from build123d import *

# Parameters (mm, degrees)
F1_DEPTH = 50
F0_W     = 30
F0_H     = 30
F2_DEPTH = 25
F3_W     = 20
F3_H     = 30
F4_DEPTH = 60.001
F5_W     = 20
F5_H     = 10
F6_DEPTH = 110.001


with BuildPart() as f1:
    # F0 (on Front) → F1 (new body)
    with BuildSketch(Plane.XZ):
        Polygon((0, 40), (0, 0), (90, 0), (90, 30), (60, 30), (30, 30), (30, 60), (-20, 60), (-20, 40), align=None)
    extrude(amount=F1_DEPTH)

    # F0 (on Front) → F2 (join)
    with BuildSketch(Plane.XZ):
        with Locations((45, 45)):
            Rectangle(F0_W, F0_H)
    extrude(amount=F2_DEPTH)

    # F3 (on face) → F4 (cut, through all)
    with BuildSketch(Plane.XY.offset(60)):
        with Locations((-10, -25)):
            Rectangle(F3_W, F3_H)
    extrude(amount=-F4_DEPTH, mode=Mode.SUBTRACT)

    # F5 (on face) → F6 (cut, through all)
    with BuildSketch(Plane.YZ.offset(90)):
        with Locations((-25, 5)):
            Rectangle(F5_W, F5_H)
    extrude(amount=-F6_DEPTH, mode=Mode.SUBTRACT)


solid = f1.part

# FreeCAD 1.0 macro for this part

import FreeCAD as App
import Part
import Sketcher
from FreeCAD import Vector


def add_polygon(sketch, points):
    """Adds a closed chain of lines whose ends are joined by coincident constraints."""
    first, n = sketch.GeometryCount, len(points)
    for a, b in zip(points, points[1:] + points[:1]):
        sketch.addGeometry(Part.LineSegment(App.Vector(*a, 0), App.Vector(*b, 0)), False)
    for i in range(n):
        sketch.addConstraint(Sketcher.Constraint("Coincident", first + i, 2, first + (i + 1) % n, 1))

doc = App.newDocument("Part")
body = doc.addObject("PartDesign::Body", "Body")

sketch1 = body.newObject("Sketcher::SketchObject", "Sketch")
sketch1.AttachmentSupport = (doc.getObject("XZ_Plane"), [""])
sketch1.MapMode = "FlatFace"
add_polygon(sketch1, [(0, 40), (0, 0), (90, 0), (90, 30), (30, 30), (30, 60), (-20, 60), (-20, 40)])
sketch1.addConstraint([
    Sketcher.Constraint("Vertical", 0),
    Sketcher.Constraint("Horizontal", 1),
    Sketcher.Constraint("Vertical", 2),
    Sketcher.Constraint("Horizontal", 3),
    Sketcher.Constraint("Vertical", 4),
    Sketcher.Constraint("Horizontal", 5),
    Sketcher.Constraint("Vertical", 6),
    Sketcher.Constraint("Horizontal", 7),
    Sketcher.Constraint("Coincident", 0, 2, -1, 1),
    Sketcher.Constraint("Equal", 2, 4),
    Sketcher.Constraint("Equal", 7, 6),
    Sketcher.Constraint("DistanceX", 1, 1, 1, 2, 90.0),
    Sketcher.Constraint("DistanceX", 3, 2, 3, 1, 60.0),
    Sketcher.Constraint("DistanceX", 5, 2, 5, 1, 50.0),
    Sketcher.Constraint("DistanceY", 0, 2, 0, 1, 40.0),
])
pad1 = body.newObject("PartDesign::Pad", "Pad")
pad1.Profile = sketch1
pad1.Length = 50

sketch2 = body.newObject("Sketcher::SketchObject", "Sketch001")
sketch2.AttachmentSupport = (doc.getObject("XZ_Plane"), [""])
sketch2.MapMode = "FlatFace"
add_polygon(sketch2, [(30, 60), (30, 30), (60, 30), (60, 60)])
sketch2.addConstraint([
    Sketcher.Constraint("Vertical", 0),
    Sketcher.Constraint("Horizontal", 1),
    Sketcher.Constraint("Vertical", 2),
    Sketcher.Constraint("Horizontal", 3),
    Sketcher.Constraint("Equal", 3, 0),
    Sketcher.Constraint("DistanceX", 1, 1, 1, 2, 30.0),
    Sketcher.Constraint("DistanceX", -1, 1, 0, 2, 30.0),
    Sketcher.Constraint("DistanceY", -1, 1, 0, 2, 30.0),
])
pad2 = body.newObject("PartDesign::Pad", "Pad001")
pad2.Profile = sketch2
pad2.Length = 25

sketch3 = body.newObject("Sketcher::SketchObject", "Sketch002")
sketch3.AttachmentSupport = (doc.getObject("XY_Plane"), [""])
sketch3.MapMode = "FlatFace"
sketch3.AttachmentOffset = App.Placement(Vector(0, 0, 60), App.Rotation())
add_polygon(sketch3, [(-20, -10), (-20, -40), (0, -40), (0, -10)])
sketch3.addConstraint([
    Sketcher.Constraint("Vertical", 0),
    Sketcher.Constraint("Horizontal", 1),
    Sketcher.Constraint("Vertical", 2),
    Sketcher.Constraint("Horizontal", 3),
    Sketcher.Constraint("PointOnObject", 1, 2, -2),
    Sketcher.Constraint("DistanceX", 1, 1, 1, 2, 20.0),
    Sketcher.Constraint("DistanceY", 0, 2, 0, 1, 30.0),
    Sketcher.Constraint("DistanceY", 0, 2, -1, 1, 40.0),
])
pocket1 = body.newObject("PartDesign::Pocket", "Pocket")
pocket1.Profile = sketch3
pocket1.Type = "ThroughAll"

sketch4 = body.newObject("Sketcher::SketchObject", "Sketch003")
sketch4.AttachmentSupport = (doc.getObject("YZ_Plane"), [""])
sketch4.MapMode = "FlatFace"
sketch4.AttachmentOffset = App.Placement(Vector(0, 0, 90), App.Rotation())
add_polygon(sketch4, [(-35, 10), (-35, 0), (-15, 0), (-15, 10)])
sketch4.addConstraint([
    Sketcher.Constraint("Vertical", 0),
    Sketcher.Constraint("Horizontal", 1),
    Sketcher.Constraint("Vertical", 2),
    Sketcher.Constraint("Horizontal", 3),
    Sketcher.Constraint("PointOnObject", 0, 2, -1),
    Sketcher.Constraint("DistanceX", 1, 1, 1, 2, 20.0),
    Sketcher.Constraint("DistanceY", 0, 2, 0, 1, 10.0),
    Sketcher.Constraint("DistanceX", 0, 2, -1, 1, 35.0),
])
pocket2 = body.newObject("PartDesign::Pocket", "Pocket001")
pocket2.Profile = sketch4
pocket2.Type = "ThroughAll"

doc.recompute()
